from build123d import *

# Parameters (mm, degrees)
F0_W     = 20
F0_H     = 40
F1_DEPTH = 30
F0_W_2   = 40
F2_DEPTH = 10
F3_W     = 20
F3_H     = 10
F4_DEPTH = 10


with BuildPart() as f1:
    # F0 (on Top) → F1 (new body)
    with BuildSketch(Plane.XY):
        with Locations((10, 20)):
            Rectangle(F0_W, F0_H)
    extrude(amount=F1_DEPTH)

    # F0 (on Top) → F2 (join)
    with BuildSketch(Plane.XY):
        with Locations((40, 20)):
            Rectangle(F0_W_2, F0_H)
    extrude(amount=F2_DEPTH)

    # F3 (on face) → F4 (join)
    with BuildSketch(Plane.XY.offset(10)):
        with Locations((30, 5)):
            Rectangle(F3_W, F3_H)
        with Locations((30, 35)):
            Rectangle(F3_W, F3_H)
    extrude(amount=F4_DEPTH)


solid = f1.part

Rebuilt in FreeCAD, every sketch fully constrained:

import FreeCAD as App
import Part
import Sketcher
from FreeCAD import Vector
Q = App.Units.Quantity

doc = App.newDocument("Part")
body = doc.addObject("PartDesign::Body", "Body")

# Sketch on XY plane
sketch1 = body.newObject("Sketcher::SketchObject", "Sketch")
sketch1.AttachmentSupport = (doc.getObject("XY_Plane"), [""])
sketch1.MapMode = "FlatFace"
sketch1.addGeometry([
    Part.LineSegment(Vector(0, 40, 0), Vector(0, 0, 0)),
    Part.LineSegment(Vector(0, 0, 0), Vector(20, 0, 0)),
    Part.LineSegment(Vector(20, 0, 0), Vector(20, 40, 0)),
    Part.LineSegment(Vector(20, 40, 0), Vector(0, 40, 0)),
], False)
sketch1.addConstraint([
    Sketcher.Constraint("Coincident", 0, 2, 1, 1),
    Sketcher.Constraint("Coincident", 1, 2, 2, 1),
    Sketcher.Constraint("Coincident", 2, 2, 3, 1),
    Sketcher.Constraint("Coincident", 3, 2, 0, 1),
    Sketcher.Constraint("Vertical", 0),
    Sketcher.Constraint("Horizontal", 1),
    Sketcher.Constraint("Vertical", 2),
    Sketcher.Constraint("Horizontal", 3),
    Sketcher.Constraint("Coincident", 0, 2, -1, 1),
    Sketcher.Constraint("DistanceX", 1, 1, 1, 2, Q("20 mm")),
    Sketcher.Constraint("DistanceY", 0, 2, 0, 1, Q("40 mm")),
])
pad1 = body.newObject("PartDesign::Pad", "Pad")
pad1.Profile = sketch1
pad1.Length = 30

# Sketch on XY plane
sketch2 = body.newObject("Sketcher::SketchObject", "Sketch001")
sketch2.AttachmentSupport = (doc.getObject("XY_Plane"), [""])
sketch2.MapMode = "FlatFace"
sketch2.addGeometry([
    Part.LineSegment(Vector(20, 40, 0), Vector(20, 0, 0)),
    Part.LineSegment(Vector(20, 0, 0), Vector(60, 0, 0)),
    Part.LineSegment(Vector(60, 0, 0), Vector(60, 40, 0)),
    Part.LineSegment(Vector(60, 40, 0), Vector(20, 40, 0)),
], False)
sketch2.addConstraint([
    Sketcher.Constraint("Coincident", 0, 2, 1, 1),
    Sketcher.Constraint("Coincident", 1, 2, 2, 1),
    Sketcher.Constraint("Coincident", 2, 2, 3, 1),
    Sketcher.Constraint("Coincident", 3, 2, 0, 1),
    Sketcher.Constraint("Vertical", 0),
    Sketcher.Constraint("Horizontal", 1),
    Sketcher.Constraint("Vertical", 2),
    Sketcher.Constraint("Horizontal", 3),
    Sketcher.Constraint("PointOnObject", 0, 2, -1),
    Sketcher.Constraint("Equal", 3, 0),
    Sketcher.Constraint("DistanceX", 1, 1, 1, 2, Q("40 mm")),
    Sketcher.Constraint("DistanceX", -1, 1, 0, 2, Q("20 mm")),
])
pad2 = body.newObject("PartDesign::Pad", "Pad001")
pad2.Profile = sketch2
pad2.Length = 10

# Sketch on XY plane
sketch3 = body.newObject("Sketcher::SketchObject", "Sketch002")
sketch3.AttachmentSupport = (doc.getObject("XY_Plane"), [""])
sketch3.MapMode = "FlatFace"
sketch3.AttachmentOffset = App.Placement(Vector(0, 0, 10), App.Rotation())
sketch3.addGeometry([
    Part.LineSegment(Vector(20, 10, 0), Vector(20, 0, 0)),  # 0
    Part.LineSegment(Vector(20, 0, 0), Vector(40, 0, 0)),  # 1
    Part.LineSegment(Vector(40, 0, 0), Vector(40, 10, 0)),  # 2
    Part.LineSegment(Vector(40, 10, 0), Vector(20, 10, 0)),  # 3
    Part.LineSegment(Vector(20, 40, 0), Vector(20, 30, 0)),  # 4
    Part.LineSegment(Vector(20, 30, 0), Vector(40, 30, 0)),  # 5
    Part.LineSegment(Vector(40, 30, 0), Vector(40, 40, 0)),  # 6
    Part.LineSegment(Vector(40, 40, 0), Vector(20, 40, 0)),  # 7
], False)
sketch3.addConstraint([
    Sketcher.Constraint("Coincident", 0, 2, 1, 1),
    Sketcher.Constraint("Coincident", 1, 2, 2, 1),
    Sketcher.Constraint("Coincident", 2, 2, 3, 1),
    Sketcher.Constraint("Coincident", 3, 2, 0, 1),
    Sketcher.Constraint("Coincident", 4, 2, 5, 1),
    Sketcher.Constraint("Coincident", 5, 2, 6, 1),
    Sketcher.Constraint("Coincident", 6, 2, 7, 1),
    Sketcher.Constraint("Coincident", 7, 2, 4, 1),
    Sketcher.Constraint("Vertical", 0),
    Sketcher.Constraint("Horizontal", 1),
    Sketcher.Constraint("Vertical", 2),
    Sketcher.Constraint("Horizontal", 3),
    Sketcher.Constraint("Vertical", 4),
    Sketcher.Constraint("Horizontal", 5),
    Sketcher.Constraint("Vertical", 6),
    Sketcher.Constraint("Horizontal", 7),
    Sketcher.Constraint("PointOnObject", 0, 2, -1),
    Sketcher.Constraint("Vertical", 3, 2, 4, 2),
    Sketcher.Constraint("Vertical", 2, 2, 5, 2),
    Sketcher.Constraint("Equal", 2, 4),
    Sketcher.Constraint("DistanceX", 1, 1, 1, 2, Q("20 mm")),
    Sketcher.Constraint("DistanceY", 0, 2, 0, 1, Q("10 mm")),
    Sketcher.Constraint("DistanceX", -1, 1, 0, 2, Q("20 mm")),
    Sketcher.Constraint("DistanceY", -1, 1, 4, 2, Q("30 mm")),
])
pad3 = body.newObject("PartDesign::Pad", "Pad002")
pad3.Profile = sketch3
pad3.Length = 10

doc.recompute()
